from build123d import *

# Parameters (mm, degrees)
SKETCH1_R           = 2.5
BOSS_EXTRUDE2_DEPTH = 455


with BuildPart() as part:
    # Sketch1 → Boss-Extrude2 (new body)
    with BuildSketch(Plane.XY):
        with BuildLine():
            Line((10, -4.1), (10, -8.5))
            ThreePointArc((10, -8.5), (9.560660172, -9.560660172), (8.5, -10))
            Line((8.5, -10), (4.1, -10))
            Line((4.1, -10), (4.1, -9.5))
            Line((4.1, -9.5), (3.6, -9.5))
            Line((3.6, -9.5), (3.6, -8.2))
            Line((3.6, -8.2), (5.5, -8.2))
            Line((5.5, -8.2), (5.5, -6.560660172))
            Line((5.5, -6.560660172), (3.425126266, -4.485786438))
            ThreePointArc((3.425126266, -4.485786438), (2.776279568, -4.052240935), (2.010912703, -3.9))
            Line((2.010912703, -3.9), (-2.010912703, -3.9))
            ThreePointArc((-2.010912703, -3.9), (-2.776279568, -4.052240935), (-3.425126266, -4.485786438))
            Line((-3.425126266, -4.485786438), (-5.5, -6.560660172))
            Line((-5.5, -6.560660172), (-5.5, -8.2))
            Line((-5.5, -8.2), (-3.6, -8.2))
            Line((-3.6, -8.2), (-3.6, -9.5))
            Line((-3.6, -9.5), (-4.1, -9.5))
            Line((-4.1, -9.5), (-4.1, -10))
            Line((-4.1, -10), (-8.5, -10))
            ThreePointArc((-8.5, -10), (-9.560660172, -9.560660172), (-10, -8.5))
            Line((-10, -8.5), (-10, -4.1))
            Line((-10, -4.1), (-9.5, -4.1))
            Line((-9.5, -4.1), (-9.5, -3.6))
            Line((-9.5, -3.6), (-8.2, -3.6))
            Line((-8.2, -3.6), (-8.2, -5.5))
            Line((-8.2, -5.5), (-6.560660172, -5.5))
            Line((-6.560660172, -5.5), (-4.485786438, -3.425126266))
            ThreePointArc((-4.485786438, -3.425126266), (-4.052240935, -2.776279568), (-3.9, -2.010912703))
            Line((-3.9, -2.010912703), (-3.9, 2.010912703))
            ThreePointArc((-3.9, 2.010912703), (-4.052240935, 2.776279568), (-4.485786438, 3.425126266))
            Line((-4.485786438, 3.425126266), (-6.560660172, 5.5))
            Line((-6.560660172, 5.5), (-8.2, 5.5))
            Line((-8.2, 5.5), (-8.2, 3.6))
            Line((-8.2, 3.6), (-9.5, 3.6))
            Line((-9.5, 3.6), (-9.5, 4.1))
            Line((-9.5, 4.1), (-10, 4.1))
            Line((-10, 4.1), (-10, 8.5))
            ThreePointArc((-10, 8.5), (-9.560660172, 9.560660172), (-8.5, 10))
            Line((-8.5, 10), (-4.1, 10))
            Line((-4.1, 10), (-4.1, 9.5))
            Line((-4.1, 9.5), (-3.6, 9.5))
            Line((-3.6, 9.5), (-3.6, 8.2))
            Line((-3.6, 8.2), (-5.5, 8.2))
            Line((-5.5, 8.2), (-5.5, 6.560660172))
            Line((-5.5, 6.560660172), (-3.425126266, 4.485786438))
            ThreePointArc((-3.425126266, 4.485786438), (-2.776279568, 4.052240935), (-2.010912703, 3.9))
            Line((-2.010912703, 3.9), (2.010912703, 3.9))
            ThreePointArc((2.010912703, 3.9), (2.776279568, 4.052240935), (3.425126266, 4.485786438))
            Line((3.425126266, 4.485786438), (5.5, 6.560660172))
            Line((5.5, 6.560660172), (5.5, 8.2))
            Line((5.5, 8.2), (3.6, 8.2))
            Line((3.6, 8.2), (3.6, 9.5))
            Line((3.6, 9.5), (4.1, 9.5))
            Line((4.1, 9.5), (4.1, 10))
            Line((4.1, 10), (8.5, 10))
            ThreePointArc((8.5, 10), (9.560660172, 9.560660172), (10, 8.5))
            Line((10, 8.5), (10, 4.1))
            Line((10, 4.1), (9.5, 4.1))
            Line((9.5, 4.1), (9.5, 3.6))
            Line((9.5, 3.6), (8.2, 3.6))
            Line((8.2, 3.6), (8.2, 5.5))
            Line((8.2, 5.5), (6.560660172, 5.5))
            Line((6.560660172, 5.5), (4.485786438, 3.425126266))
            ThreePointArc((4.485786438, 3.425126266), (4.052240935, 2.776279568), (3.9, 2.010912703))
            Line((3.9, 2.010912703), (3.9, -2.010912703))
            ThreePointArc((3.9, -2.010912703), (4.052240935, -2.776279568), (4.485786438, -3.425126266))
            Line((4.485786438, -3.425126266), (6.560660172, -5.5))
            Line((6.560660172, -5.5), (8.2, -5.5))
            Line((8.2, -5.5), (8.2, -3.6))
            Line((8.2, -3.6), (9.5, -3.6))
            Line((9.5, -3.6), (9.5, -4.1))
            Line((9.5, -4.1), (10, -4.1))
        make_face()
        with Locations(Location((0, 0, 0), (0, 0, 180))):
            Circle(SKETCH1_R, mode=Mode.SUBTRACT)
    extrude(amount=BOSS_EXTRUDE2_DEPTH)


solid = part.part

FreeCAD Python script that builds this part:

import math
import FreeCAD as App
import Part
import Sketcher

V = App.Vector

doc = App.newDocument("Part")
body = doc.addObject("PartDesign::Body", "Body")

# Sketch on XY plane
sketch1 = body.newObject("Sketcher::SketchObject", "Sketch")
sketch1.AttachmentSupport = (doc.getObject("XY_Plane"), [""])
sketch1.MapMode = "FlatFace"
sketch1.addGeometry([
    Part.LineSegment(V(10, -8.5, 0), V(10, -4.1, 0)),  # 0
    Part.LineSegment(V(10, -4.1, 0), V(9.5, -4.1, 0)),  # 1
    Part.LineSegment(V(9.5, -4.1, 0), V(9.5, -3.6, 0)),  # 2
    Part.LineSegment(V(9.5, -3.6, 0), V(8.2, -3.6, 0)),  # 3
    Part.LineSegment(V(8.2, -3.6, 0), V(8.2, -5.5, 0)),  # 4
    Part.LineSegment(V(8.2, -5.5, 0), V(6.56066, -5.5, 0)),  # 5
    Part.LineSegment(V(6.56066, -5.5, 0), V(4.485786, -3.425126, 0)),  # 6
    Part.ArcOfCircle(Part.Circle(V(5.9, -2.010913, 0), V(0, 0, 1), 2), math.radians(180), math.radians(225)),  # 7
    Part.LineSegment(V(3.9, -2.010913, 0), V(3.9, 2.010913, 0)),  # 8
    Part.ArcOfCircle(Part.Circle(V(5.9, 2.010913, 0), V(0, 0, 1), 2), math.radians(135), math.radians(180)),  # 9
    Part.LineSegment(V(4.485786, 3.425126, 0), V(6.56066, 5.5, 0)),  # 10
    Part.LineSegment(V(6.56066, 5.5, 0), V(8.2, 5.5, 0)),  # 11
    Part.LineSegment(V(8.2, 5.5, 0), V(8.2, 3.6, 0)),  # 12
    Part.LineSegment(V(8.2, 3.6, 0), V(9.5, 3.6, 0)),  # 13
    Part.LineSegment(V(9.5, 3.6, 0), V(9.5, 4.1, 0)),  # 14
    Part.LineSegment(V(9.5, 4.1, 0), V(10, 4.1, 0)),  # 15
    Part.LineSegment(V(10, 4.1, 0), V(10, 8.5, 0)),  # 16
    Part.ArcOfCircle(Part.Circle(V(8.5, 8.5, 0), V(0, 0, 1), 1.5), math.radians(0), math.radians(90)),  # 17
    Part.LineSegment(V(8.5, 10, 0), V(4.1, 10, 0)),  # 18
    Part.LineSegment(V(4.1, 10, 0), V(4.1, 9.5, 0)),  # 19
    Part.LineSegment(V(4.1, 9.5, 0), V(3.6, 9.5, 0)),  # 20
    Part.LineSegment(V(3.6, 9.5, 0), V(3.6, 8.2, 0)),  # 21
    Part.LineSegment(V(3.6, 8.2, 0), V(5.5, 8.2, 0)),  # 22
    Part.LineSegment(V(5.5, 8.2, 0), V(5.5, 6.56066, 0)),  # 23
    Part.LineSegment(V(5.5, 6.56066, 0), V(3.425126, 4.485786, 0)),  # 24
    Part.ArcOfCircle(Part.Circle(V(2.010913, 5.9, 0), V(0, 0, 1), 2), math.radians(-90), math.radians(-45)),  # 25
    Part.LineSegment(V(2.010913, 3.9, 0), V(-2.010913, 3.9, 0)),  # 26
    Part.ArcOfCircle(Part.Circle(V(-2.010913, 5.9, 0), V(0, 0, 1), 2), math.radians(-135), math.radians(-90)),  # 27
    Part.LineSegment(V(-3.425126, 4.485786, 0), V(-5.5, 6.56066, 0)),  # 28
    Part.LineSegment(V(-5.5, 6.56066, 0), V(-5.5, 8.2, 0)),  # 29
    Part.LineSegment(V(-5.5, 8.2, 0), V(-3.6, 8.2, 0)),  # 30
    Part.LineSegment(V(-3.6, 8.2, 0), V(-3.6, 9.5, 0)),  # 31
    Part.LineSegment(V(-3.6, 9.5, 0), V(-4.1, 9.5, 0)),  # 32
    Part.LineSegment(V(-4.1, 9.5, 0), V(-4.1, 10, 0)),  # 33
    Part.LineSegment(V(-4.1, 10, 0), V(-8.5, 10, 0)),  # 34
    Part.ArcOfCircle(Part.Circle(V(-8.5, 8.5, 0), V(0, 0, 1), 1.5), math.radians(90), math.radians(180)),  # 35
    Part.LineSegment(V(-10, 8.5, 0), V(-10, 4.1, 0)),  # 36
    Part.LineSegment(V(-10, 4.1, 0), V(-9.5, 4.1, 0)),  # 37
    Part.LineSegment(V(-9.5, 4.1, 0), V(-9.5, 3.6, 0)),  # 38
    Part.LineSegment(V(-9.5, 3.6, 0), V(-8.2, 3.6, 0)),  # 39
    Part.LineSegment(V(-8.2, 3.6, 0), V(-8.2, 5.5, 0)),  # 40
    Part.LineSegment(V(-8.2, 5.5, 0), V(-6.56066, 5.5, 0)),  # 41
    Part.LineSegment(V(-6.56066, 5.5, 0), V(-4.485786, 3.425126, 0)),  # 42
    Part.ArcOfCircle(Part.Circle(V(-5.9, 2.010913, 0), V(0, 0, 1), 2), math.radians(0), math.radians(45)),  # 43
    Part.LineSegment(V(-3.9, 2.010913, 0), V(-3.9, -2.010913, 0)),  # 44
    Part.ArcOfCircle(Part.Circle(V(-5.9, -2.010913, 0), V(0, 0, 1), 2), math.radians(-45), math.radians(0)),  # 45
    Part.LineSegment(V(-4.485786, -3.425126, 0), V(-6.56066, -5.5, 0)),  # 46
    Part.LineSegment(V(-6.56066, -5.5, 0), V(-8.2, -5.5, 0)),  # 47
    Part.LineSegment(V(-8.2, -5.5, 0), V(-8.2, -3.6, 0)),  # 48
    Part.LineSegment(V(-8.2, -3.6, 0), V(-9.5, -3.6, 0)),  # 49
    Part.LineSegment(V(-9.5, -3.6, 0), V(-9.5, -4.1, 0)),  # 50
    Part.LineSegment(V(-9.5, -4.1, 0), V(-10, -4.1, 0)),  # 51
    Part.LineSegment(V(-10, -4.1, 0), V(-10, -8.5, 0)),  # 52
    Part.ArcOfCircle(Part.Circle(V(-8.5, -8.5, 0), V(0, 0, 1), 1.5), math.radians(180), math.radians(270)),  # 53
    Part.LineSegment(V(-8.5, -10, 0), V(-4.1, -10, 0)),  # 54
    Part.LineSegment(V(-4.1, -10, 0), V(-4.1, -9.5, 0)),  # 55
    Part.LineSegment(V(-4.1, -9.5, 0), V(-3.6, -9.5, 0)),  # 56
    Part.LineSegment(V(-3.6, -9.5, 0), V(-3.6, -8.2, 0)),  # 57
    Part.LineSegment(V(-3.6, -8.2, 0), V(-5.5, -8.2, 0)),  # 58
    Part.LineSegment(V(-5.5, -8.2, 0), V(-5.5, -6.56066, 0)),  # 59
    Part.LineSegment(V(-5.5, -6.56066, 0), V(-3.425126, -4.485786, 0)),  # 60
    Part.ArcOfCircle(Part.Circle(V(-2.010913, -5.9, 0), V(0, 0, 1), 2), math.radians(90), math.radians(135)),  # 61
    Part.LineSegment(V(-2.010913, -3.9, 0), V(2.010913, -3.9, 0)),  # 62
    Part.ArcOfCircle(Part.Circle(V(2.010913, -5.9, 0), V(0, 0, 1), 2), math.radians(45), math.radians(90)),  # 63
    Part.LineSegment(V(3.425126, -4.485786, 0), V(5.5, -6.56066, 0)),  # 64
    Part.LineSegment(V(5.5, -6.56066, 0), V(5.5, -8.2, 0)),  # 65
    Part.LineSegment(V(5.5, -8.2, 0), V(3.6, -8.2, 0)),  # 66
    Part.LineSegment(V(3.6, -8.2, 0), V(3.6, -9.5, 0)),  # 67
    Part.LineSegment(V(3.6, -9.5, 0), V(4.1, -9.5, 0)),  # 68
    Part.LineSegment(V(4.1, -9.5, 0), V(4.1, -10, 0)),  # 69
    Part.LineSegment(V(4.1, -10, 0), V(8.5, -10, 0)),  # 70
    Part.ArcOfCircle(Part.Circle(V(8.5, -8.5, 0), V(0, 0, 1), 1.5), math.radians(-90), math.radians(0)),  # 71
    Part.Circle(V(0, 0, 0), V(0, 0, 1), 2.5),  # 72
], False)
sketch1.addConstraint([
    Sketcher.Constraint("Coincident", 0, 2, 1, 1),
    Sketcher.Constraint("Coincident", 1, 2, 2, 1),
    Sketcher.Constraint("Coincident", 2, 2, 3, 1),
    Sketcher.Constraint("Coincident", 3, 2, 4, 1),
    Sketcher.Constraint("Coincident", 4, 2, 5, 1),
    Sketcher.Constraint("Coincident", 5, 2, 6, 1),
    Sketcher.Constraint("Tangent", 6, 2, 7, 2),
    Sketcher.Constraint("Tangent", 7, 1, 8, 1),
    Sketcher.Constraint("Tangent", 8, 2, 9, 2),
    Sketcher.Constraint("Tangent", 9, 1, 10, 1),
    Sketcher.Constraint("Coincident", 10, 2, 11, 1),
    Sketcher.Constraint("Coincident", 11, 2, 12, 1),
    Sketcher.Constraint("Coincident", 12, 2, 13, 1),
    Sketcher.Constraint("Coincident", 13, 2, 14, 1),
    Sketcher.Constraint("Coincident", 14, 2, 15, 1),
    Sketcher.Constraint("Coincident", 15, 2, 16, 1),
    Sketcher.Constraint("Tangent", 16, 2, 17, 1),
    Sketcher.Constraint("Tangent", 17, 2, 18, 1),
    Sketcher.Constraint("Coincident", 18, 2, 19, 1),
    Sketcher.Constraint("Coincident", 19, 2, 20, 1),
    Sketcher.Constraint("Coincident", 20, 2, 21, 1),
    Sketcher.Constraint("Coincident", 21, 2, 22, 1),
    Sketcher.Constraint("Coincident", 22, 2, 23, 1),
    Sketcher.Constraint("Coincident", 23, 2, 24, 1),
    Sketcher.Constraint("Tangent", 24, 2, 25, 2),
    Sketcher.Constraint("Tangent", 25, 1, 26, 1),
    Sketcher.Constraint("Tangent", 26, 2, 27, 2),
    Sketcher.Constraint("Tangent", 27, 1, 28, 1),
    Sketcher.Constraint("Coincident", 28, 2, 29, 1),
    Sketcher.Constraint("Coincident", 29, 2, 30, 1),
    Sketcher.Constraint("Coincident", 30, 2, 31, 1),
    Sketcher.Constraint("Coincident", 31, 2, 32, 1),
    Sketcher.Constraint("Coincident", 32, 2, 33, 1),
    Sketcher.Constraint("Coincident", 33, 2, 34, 1),
    Sketcher.Constraint("Tangent", 34, 2, 35, 1),
    Sketcher.Constraint("Tangent", 35, 2, 36, 1),
    Sketcher.Constraint("Coincident", 36, 2, 37, 1),
    Sketcher.Constraint("Coincident", 37, 2, 38, 1),
    Sketcher.Constraint("Coincident", 38, 2, 39, 1),
    Sketcher.Constraint("Coincident", 39, 2, 40, 1),
    Sketcher.Constraint("Coincident", 40, 2, 41, 1),
    Sketcher.Constraint("Coincident", 41, 2, 42, 1),
    Sketcher.Constraint("Tangent", 42, 2, 43, 2),
    Sketcher.Constraint("Tangent", 43, 1, 44, 1),
    Sketcher.Constraint("Tangent", 44, 2, 45, 2),
    Sketcher.Constraint("Tangent", 45, 1, 46, 1),
    Sketcher.Constraint("Coincident", 46, 2, 47, 1),
    Sketcher.Constraint("Coincident", 47, 2, 48, 1),
    Sketcher.Constraint("Coincident", 48, 2, 49, 1),
    Sketcher.Constraint("Coincident", 49, 2, 50, 1),
    Sketcher.Constraint("Coincident", 50, 2, 51, 1),
    Sketcher.Constraint("Coincident", 51, 2, 52, 1),
    Sketcher.Constraint("Tangent", 52, 2, 53, 1),
    Sketcher.Constraint("Tangent", 53, 2, 54, 1),
    Sketcher.Constraint("Coincident", 54, 2, 55, 1),
    Sketcher.Constraint("Coincident", 55, 2, 56, 1),
    Sketcher.Constraint("Coincident", 56, 2, 57, 1),
    Sketcher.Constraint("Coincident", 57, 2, 58, 1),
    Sketcher.Constraint("Coincident", 58, 2, 59, 1),
    Sketcher.Constraint("Coincident", 59, 2, 60, 1),
    Sketcher.Constraint("Tangent", 60, 2, 61, 2),
    Sketcher.Constraint("Tangent", 61, 1, 62, 1),
    Sketcher.Constraint("Tangent", 62, 2, 63, 2),
    Sketcher.Constraint("Tangent", 63, 1, 64, 1),
    Sketcher.Constraint("Coincident", 64, 2, 65, 1),
    Sketcher.Constraint("Coincident", 65, 2, 66, 1),
    Sketcher.Constraint("Coincident", 66, 2, 67, 1),
    Sketcher.Constraint("Coincident", 67, 2, 68, 1),
    Sketcher.Constraint("Coincident", 68, 2, 69, 1),
    Sketcher.Constraint("Coincident", 69, 2, 70, 1),
    Sketcher.Constraint("Tangent", 70, 2, 71, 1),
    Sketcher.Constraint("Tangent", 71, 2, 0, 1),
    Sketcher.Constraint("Vertical", 0),
    Sketcher.Constraint("Horizontal", 1),
    Sketcher.Constraint("Vertical", 2),
    Sketcher.Constraint("Horizontal", 3),
    Sketcher.Constraint("Vertical", 4),
    Sketcher.Constraint("Horizontal", 5),
    Sketcher.Constraint("Vertical", 8),
    Sketcher.Constraint("Horizontal", 11),
    Sketcher.Constraint("Vertical", 12),
    Sketcher.Constraint("Horizontal", 13),
    Sketcher.Constraint("Vertical", 14),
    Sketcher.Constraint("Horizontal", 15),
    Sketcher.Constraint("Vertical", 16),
    Sketcher.Constraint("Horizontal", 18),
    Sketcher.Constraint("Vertical", 19),
    Sketcher.Constraint("Horizontal", 20),
    Sketcher.Constraint("Vertical", 21),
    Sketcher.Constraint("Horizontal", 22),
    Sketcher.Constraint("Vertical", 23),
    Sketcher.Constraint("Horizontal", 26),
    Sketcher.Constraint("Vertical", 29),
    Sketcher.Constraint("Horizontal", 30),
    Sketcher.Constraint("Vertical", 31),
    Sketcher.Constraint("Horizontal", 32),
    Sketcher.Constraint("Vertical", 33),
    Sketcher.Constraint("Horizontal", 34),
    Sketcher.Constraint("Vertical", 36),
    Sketcher.Constraint("Horizontal", 37),
    Sketcher.Constraint("Vertical", 38),
    Sketcher.Constraint("Horizontal", 39),
    Sketcher.Constraint("Vertical", 40),
    Sketcher.Constraint("Horizontal", 41),
    Sketcher.Constraint("Vertical", 44),
    Sketcher.Constraint("Horizontal", 47),
    Sketcher.Constraint("Vertical", 48),
    Sketcher.Constraint("Horizontal", 49),
    Sketcher.Constraint("Vertical", 50),
    Sketcher.Constraint("Horizontal", 51),
    Sketcher.Constraint("Vertical", 52),
    Sketcher.Constraint("Horizontal", 54),
    Sketcher.Constraint("Vertical", 55),
    Sketcher.Constraint("Horizontal", 56),
    Sketcher.Constraint("Vertical", 57),
    Sketcher.Constraint("Horizontal", 58),
    Sketcher.Constraint("Vertical", 59),
    Sketcher.Constraint("Horizontal", 62),
    Sketcher.Constraint("Vertical", 65),
    Sketcher.Constraint("Horizontal", 66),
    Sketcher.Constraint("Vertical", 67),
    Sketcher.Constraint("Horizontal", 68),
    Sketcher.Constraint("Vertical", 69),
    Sketcher.Constraint("Horizontal", 70),
    Sketcher.Constraint("Coincident", 72, 3, -1, 1),
    Sketcher.Constraint("Equal", 7, 9),
    Sketcher.Constraint("Equal", 9, 25),
    Sketcher.Constraint("Equal", 25, 27),
    Sketcher.Constraint("Equal", 17, 35),
    Sketcher.Constraint("Equal", 27, 43),
    Sketcher.Constraint("Equal", 43, 45),
    Sketcher.Constraint("Equal", 35, 53),
    Sketcher.Constraint("Equal", 45, 61),
    Sketcher.Constraint("Equal", 61, 63),
    Sketcher.Constraint("Equal", 53, 71),
    Sketcher.Constraint("Symmetric", 7, 3, 43, 3, -1, 1),
    Sketcher.Constraint("Symmetric", 17, 3, 53, 3, -1, 1),
    Sketcher.Constraint("Symmetric", 25, 3, 61, 3, -1, 1),
    Sketcher.Constraint("Symmetric", 35, 3, 71, 3, -1, 1),
    Sketcher.Constraint("Symmetric", 1, 2, 37, 2, -1, 1),
    Sketcher.Constraint("Symmetric", 3, 2, 39, 2, -1, 1),
    Sketcher.Constraint("Symmetric", 5, 2, 41, 2, -1, 1),
    Sketcher.Constraint("Symmetric", 9, 1, 45, 1, -1, 1),
    Sketcher.Constraint("Symmetric", 11, 2, 47, 2, -1, 1),
    Sketcher.Constraint("Symmetric", 13, 2, 49, 2, -1, 1),
    Sketcher.Constraint("Symmetric", 19, 2, 55, 2, -1, 1),
    Sketcher.Constraint("Symmetric", 21, 2, 57, 2, -1, 1),
    Sketcher.Constraint("Symmetric", 23, 2, 59, 2, -1, 1),
    Sketcher.Constraint("Symmetric", 27, 1, 63, 1, -1, 1),
    Sketcher.Constraint("Symmetric", 29, 2, 65, 2, -1, 1),
    Sketcher.Constraint("Symmetric", 31, 2, 67, 2, -1, 1),
    Sketcher.Constraint("Symmetric", 17, 3, 35, 3, -2),
    Sketcher.Constraint("Symmetric", 24, 2, 27, 1, -2),
    Sketcher.Constraint("Symmetric", 22, 2, 29, 2, -2),
    Sketcher.Constraint("Symmetric", 20, 2, 31, 2, -2),
    Sketcher.Constraint("Symmetric", 14, 2, 37, 2, -2),
    Sketcher.Constraint("Symmetric", 12, 2, 39, 2, -2),
    Sketcher.Constraint("Symmetric", 10, 2, 41, 2, -2),
    Sketcher.Constraint("Perpendicular", 6, 10),
    Sketcher.Constraint("Parallel", 10, 24),
    Sketcher.Constraint("Perpendicular", 24, 28),
    Sketcher.Constraint("Horizontal", 1, 2, 50, 2),
    Sketcher.Constraint("Vertical", 33, 2, 54, 2),
    Sketcher.Constraint("Vertical", 19, 2, 68, 2),
    Sketcher.Constraint("Equal", 15, 20),
    Sketcher.Constraint("Equal", 70, 0),
    Sketcher.Constraint("Equal", 68, 2),
    Sketcher.Constraint("Equal", 66, 4),
    Sketcher.Constraint("Equal", 62, 8),
    Sketcher.Constraint("Equal", 14, 19),
    Sketcher.Constraint("Equal", 49, 21),
    Sketcher.Constraint("Equal", 47, 23),
    Sketcher.Constraint("Equal", 10, 24),
    Sketcher.Constraint("Diameter", 72, 5.0),
    Sketcher.Constraint("Radius", 7, 2.0),
    Sketcher.Constraint("Radius", 17, 1.5),
    Sketcher.Constraint("DistanceX", 1, 2, 1, 1, 0.5),
    Sketcher.Constraint("DistanceX", 3, 2, 3, 1, 1.3),
    Sketcher.Constraint("DistanceX", 18, 2, 18, 1, 4.4),
    Sketcher.Constraint("DistanceX", 22, 1, 22, 2, 1.9),
    Sketcher.Constraint("DistanceX", -1, 1, 0, 2, 10.0),
    Sketcher.Constraint("DistanceX", -1, 1, 7, 3, 5.9),
    Sketcher.Constraint("DistanceX", 5, 2, 5, 1, 1.63934),
])
pad1 = body.newObject("PartDesign::Pad", "Pad")
pad1.Profile = sketch1
pad1.Length = 455

doc.recompute()
